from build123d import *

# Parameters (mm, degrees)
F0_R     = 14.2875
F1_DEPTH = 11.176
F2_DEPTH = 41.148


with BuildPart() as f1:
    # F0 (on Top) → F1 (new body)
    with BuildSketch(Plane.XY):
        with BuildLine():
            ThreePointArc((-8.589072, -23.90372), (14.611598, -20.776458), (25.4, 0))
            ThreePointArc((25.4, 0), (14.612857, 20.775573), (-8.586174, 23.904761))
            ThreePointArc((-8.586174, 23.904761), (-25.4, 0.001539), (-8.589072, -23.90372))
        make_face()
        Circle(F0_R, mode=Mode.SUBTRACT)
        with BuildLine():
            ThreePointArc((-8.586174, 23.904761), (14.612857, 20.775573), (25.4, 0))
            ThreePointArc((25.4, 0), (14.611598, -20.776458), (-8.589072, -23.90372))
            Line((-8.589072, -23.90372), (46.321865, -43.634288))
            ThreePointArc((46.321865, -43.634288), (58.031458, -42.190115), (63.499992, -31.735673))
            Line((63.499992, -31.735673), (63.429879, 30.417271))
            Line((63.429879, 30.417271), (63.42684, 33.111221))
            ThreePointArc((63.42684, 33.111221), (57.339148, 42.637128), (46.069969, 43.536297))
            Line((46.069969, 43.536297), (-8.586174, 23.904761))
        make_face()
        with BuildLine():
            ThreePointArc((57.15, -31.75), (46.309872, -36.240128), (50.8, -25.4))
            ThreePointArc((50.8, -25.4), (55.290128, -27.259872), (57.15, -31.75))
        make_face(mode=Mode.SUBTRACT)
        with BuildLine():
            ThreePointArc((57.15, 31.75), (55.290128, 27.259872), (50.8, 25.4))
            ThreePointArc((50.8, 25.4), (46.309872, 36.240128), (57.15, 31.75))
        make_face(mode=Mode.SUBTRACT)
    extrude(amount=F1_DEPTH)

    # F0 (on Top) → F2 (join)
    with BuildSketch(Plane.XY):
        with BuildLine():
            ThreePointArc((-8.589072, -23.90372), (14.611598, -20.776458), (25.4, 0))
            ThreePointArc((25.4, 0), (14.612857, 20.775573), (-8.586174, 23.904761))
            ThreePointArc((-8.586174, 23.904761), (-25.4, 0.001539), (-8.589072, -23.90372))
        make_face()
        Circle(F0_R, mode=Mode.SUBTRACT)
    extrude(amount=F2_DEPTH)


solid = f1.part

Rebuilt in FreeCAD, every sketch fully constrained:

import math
import FreeCAD as App
import Part
import Sketcher
Q = App.Units.Quantity

doc = App.newDocument("Part")
body = doc.addObject("PartDesign::Body", "Body")

# Sketch on XY plane
sketch1 = body.newObject("Sketcher::SketchObject", "Sketch")
sketch1.AttachmentSupport = (doc.getObject("XY_Plane"), [""])
sketch1.MapMode = "FlatFace"
sketch1.addGeometry(Part.ArcOfCircle(Part.Circle(App.Vector(-0.000001, 0, 0), App.Vector(0, 0, 1), 25.4), math.radians(109.757404), math.radians(250.23565)), False)
sketch1.addGeometry(Part.LineSegment(App.Vector(-8.589072, -23.90372, 0), App.Vector(46.321865, -43.634288, 0)), False)
sketch1.addGeometry(Part.ArcOfCircle(Part.Circle(App.Vector(50.8, -31.749999, 0), App.Vector(0, 0, 1), 12.700001), math.radians(-110.646977), math.radians(0.064631)), False)
sketch1.addGeometry(Part.LineSegment(App.Vector(63.499992, -31.735673, 0), App.Vector(63.429879, 30.417271, 0)), False)
sketch1.addGeometry(Part.LineSegment(App.Vector(63.429879, 30.417271, 0), App.Vector(63.42684, 33.111221, 0)), False)
sketch1.addGeometry(Part.ArcOfCircle(Part.Circle(App.Vector(50.800001, 31.750001, 0), App.Vector(0, 0, 1), 12.699999), math.radians(6.152936), math.radians(111.866393)), False)
sketch1.addGeometry(Part.LineSegment(App.Vector(46.069969, 43.536297, 0), App.Vector(-8.586174, 23.904761, 0)), False)
sketch1.addGeometry(Part.Circle(App.Vector(0, 0, 0), App.Vector(0, 0, 1), 14.2875), False)
sketch1.addGeometry(Part.ArcOfCircle(Part.Circle(App.Vector(50.8, -31.75, 0), App.Vector(0, 0, 1), 6.35), math.radians(0.000002), math.radians(89.999998)), False)
sketch1.addGeometry(Part.ArcOfCircle(Part.Circle(App.Vector(50.8, -31.75, 0), App.Vector(0, 0, 1), 6.35), math.radians(90), math.radians(360)), False)
sketch1.addGeometry(Part.ArcOfCircle(Part.Circle(App.Vector(50.8, 31.75, 0), App.Vector(0, 0, 1), 6.35), math.radians(0), math.radians(270)), False)
sketch1.addGeometry(Part.ArcOfCircle(Part.Circle(App.Vector(50.8, 31.75, 0), App.Vector(0, 0, 1), 6.35), math.radians(-89.999998), math.radians(-0.000002)), False)
sketch1.addConstraint(Sketcher.Constraint("Tangent", 0, 2, 1, 1))
sketch1.addConstraint(Sketcher.Constraint("Coincident", 1, 2, 2, 1))
sketch1.addConstraint(Sketcher.Constraint("Tangent", 2, 2, 3, 1))
sketch1.addConstraint(Sketcher.Constraint("Coincident", 3, 2, 4, 1))
sketch1.addConstraint(Sketcher.Constraint("Coincident", 4, 2, 5, 1))
sketch1.addConstraint(Sketcher.Constraint("Coincident", 5, 2, 6, 1))
sketch1.addConstraint(Sketcher.Constraint("Tangent", 6, 2, 0, 1))
sketch1.addConstraint(Sketcher.Constraint("Tangent", 8, 1, 9, 2))
sketch1.addConstraint(Sketcher.Constraint("Coincident", 9, 1, 8, 2))
sketch1.addConstraint(Sketcher.Constraint("Tangent", 10, 1, 11, 2))
sketch1.addConstraint(Sketcher.Constraint("Coincident", 11, 1, 10, 2))
sketch1.addConstraint(Sketcher.Constraint("Coincident", 0, 3, -1, 1))
sketch1.addConstraint(Sketcher.Constraint("Coincident", 7, 3, -1, 1))
sketch1.addConstraint(Sketcher.Constraint("Coincident", 8, 3, 2, 3))
sketch1.addConstraint(Sketcher.Constraint("Coincident", 10, 3, 5, 3))
sketch1.addConstraint(Sketcher.Constraint("Equal", 2, 5))
sketch1.addConstraint(Sketcher.Constraint("Equal", 9, 10))
sketch1.addConstraint(Sketcher.Constraint("Symmetric", 2, 3, 5, 3, -1))
sketch1.addConstraint(Sketcher.Constraint("Parallel", 3, 4))
sketch1.addConstraint(Sketcher.Constraint("Horizontal", 9, 3, 8, 1))
sketch1.addConstraint(Sketcher.Constraint("Horizontal", 11, 3, 10, 1))
sketch1.addConstraint(Sketcher.Constraint("Vertical", 11, 3, 9, 1))
sketch1.addConstraint(Sketcher.Constraint("Vertical", 9, 1, 11, 1))
sketch1.addConstraint(Sketcher.Constraint("Radius", 0, Q("1 in")))
sketch1.addConstraint(Sketcher.Constraint("Radius", 2, Q("0.5 in")))
sketch1.addConstraint(Sketcher.Constraint("Radius", 8, Q("0.25 in")))
sketch1.addConstraint(Sketcher.Constraint("Diameter", 7, Q("1.125 in")))
sketch1.addConstraint(Sketcher.Constraint("DistanceX", -1, 1, 2, 3, Q("2 in")))
sketch1.addConstraint(Sketcher.Constraint("DistanceY", 9, 1, -1, 1, Q("1 in")))
sketch1.addConstraint(Sketcher.Constraint("Distance", 4, 2.693952))
sketch1.addConstraint(Sketcher.Constraint("DistanceX", -1, 1, 3, 2, 63.429879))
sketch1.addConstraint(Sketcher.Constraint("DistanceX", -1, 1, 5, 2, 46.069969))
sketch1.addConstraint(Sketcher.Constraint("DistanceY", 1, 2, 9, 3, 11.884288))
pad1 = body.newObject("PartDesign::Pad", "Pad")
pad1.Profile = sketch1
pad1.Length = Q("0.44 in")

# Sketch on XY plane
sketch2 = body.newObject("Sketcher::SketchObject", "Sketch001")
sketch2.AttachmentSupport = (doc.getObject("XY_Plane"), [""])
sketch2.MapMode = "FlatFace"
sketch2.addGeometry(Part.ArcOfCircle(Part.Circle(App.Vector(0, 0, 0), App.Vector(0, 0, 1), 25.4), math.radians(-109.764352), math.radians(0.000001)), False)
sketch2.addGeometry(Part.ArcOfCircle(Part.Circle(App.Vector(0.000001, 0.000001, 0), App.Vector(0, 0, 1), 25.399999), math.radians(-0.000002), math.radians(109.757408)), False)
sketch2.addGeometry(Part.ArcOfCircle(Part.Circle(App.Vector(-0.000001, 0, 0), App.Vector(0, 0, 1), 25.4), math.radians(109.757404), math.radians(250.23565)), False)
sketch2.addGeometry(Part.Circle(App.Vector(0, 0, 0), App.Vector(0, 0, 1), 14.2875), False)
sketch2.addConstraint(Sketcher.Constraint("Tangent", 0, 2, 1, 1))
sketch2.addConstraint(Sketcher.Constraint("Tangent", 1, 2, 2, 1))
sketch2.addConstraint(Sketcher.Constraint("Tangent", 2, 2, 0, 1))
sketch2.addConstraint(Sketcher.Constraint("Coincident", 0, 3, -1, 1))
sketch2.addConstraint(Sketcher.Constraint("Coincident", 3, 3, -1, 1))
sketch2.addConstraint(Sketcher.Constraint("PointOnObject", 0, 2, -1))
sketch2.addConstraint(Sketcher.Constraint("Radius", 0, Q("1 in")))
sketch2.addConstraint(Sketcher.Constraint("Diameter", 3, Q("1.125 in")))
sketch2.addConstraint(Sketcher.Constraint("DistanceY", -1, 1, 1, 2, 23.904761))
sketch2.addConstraint(Sketcher.Constraint("DistanceX", 2, 2, -1, 1, 8.589072))
pad2 = body.newObject("PartDesign::Pad", "Pad001")
pad2.Profile = sketch2
pad2.Length = Q("1.62 in")

doc.recompute()
